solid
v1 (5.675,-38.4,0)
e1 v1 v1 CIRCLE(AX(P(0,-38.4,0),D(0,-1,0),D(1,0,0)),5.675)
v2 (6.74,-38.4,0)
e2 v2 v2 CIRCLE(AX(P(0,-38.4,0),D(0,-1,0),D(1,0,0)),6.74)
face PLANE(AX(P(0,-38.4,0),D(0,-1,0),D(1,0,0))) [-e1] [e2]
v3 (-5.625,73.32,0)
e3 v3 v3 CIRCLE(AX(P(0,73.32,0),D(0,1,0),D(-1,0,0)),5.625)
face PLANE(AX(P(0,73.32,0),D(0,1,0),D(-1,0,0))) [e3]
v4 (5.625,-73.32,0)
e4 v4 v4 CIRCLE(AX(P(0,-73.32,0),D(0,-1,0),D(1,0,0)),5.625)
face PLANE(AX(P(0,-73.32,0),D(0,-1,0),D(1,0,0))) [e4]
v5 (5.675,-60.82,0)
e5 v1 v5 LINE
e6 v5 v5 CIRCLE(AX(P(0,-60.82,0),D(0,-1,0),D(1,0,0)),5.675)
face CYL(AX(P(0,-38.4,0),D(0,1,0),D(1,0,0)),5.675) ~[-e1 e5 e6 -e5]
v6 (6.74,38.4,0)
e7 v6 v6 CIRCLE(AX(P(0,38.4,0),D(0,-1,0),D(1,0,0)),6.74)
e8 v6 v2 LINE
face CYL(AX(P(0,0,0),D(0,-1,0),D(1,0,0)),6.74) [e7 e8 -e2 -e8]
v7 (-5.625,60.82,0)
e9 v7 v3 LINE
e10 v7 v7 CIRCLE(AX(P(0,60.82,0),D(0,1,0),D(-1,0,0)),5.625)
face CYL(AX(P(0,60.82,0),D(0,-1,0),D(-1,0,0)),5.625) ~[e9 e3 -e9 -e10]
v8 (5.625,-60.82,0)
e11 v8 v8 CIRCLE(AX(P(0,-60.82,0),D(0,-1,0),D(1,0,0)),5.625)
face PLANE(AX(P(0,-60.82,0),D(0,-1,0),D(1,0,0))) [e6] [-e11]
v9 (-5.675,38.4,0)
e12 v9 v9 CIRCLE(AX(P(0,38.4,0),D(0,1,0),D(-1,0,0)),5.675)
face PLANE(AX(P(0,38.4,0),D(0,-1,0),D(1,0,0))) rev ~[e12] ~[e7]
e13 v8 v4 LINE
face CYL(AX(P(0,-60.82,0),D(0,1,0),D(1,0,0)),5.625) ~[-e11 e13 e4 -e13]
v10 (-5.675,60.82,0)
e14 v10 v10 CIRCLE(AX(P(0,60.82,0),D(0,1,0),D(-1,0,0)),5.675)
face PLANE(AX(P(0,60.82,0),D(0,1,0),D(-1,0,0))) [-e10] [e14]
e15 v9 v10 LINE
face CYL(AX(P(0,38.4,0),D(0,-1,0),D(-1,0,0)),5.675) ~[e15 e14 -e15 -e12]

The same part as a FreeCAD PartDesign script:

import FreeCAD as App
import Part
import Sketcher
Q = App.Units.Quantity

doc = App.newDocument("Part")
body = doc.addObject("PartDesign::Body", "Body")

# Sketch on XZ plane
sketch1 = body.newObject("Sketcher::SketchObject", "Sketch")
sketch1.AttachmentSupport = (doc.getObject("XZ_Plane"), [""])
sketch1.MapMode = "FlatFace"
sketch1.addGeometry(Part.Circle(App.Vector(0, 0, 0), App.Vector(0, 0, 1), 6.74), False)
sketch1.addConstraint(Sketcher.Constraint("Coincident", 0, 3, -1, 1))
sketch1.addConstraint(Sketcher.Constraint("Diameter", 0, Q("13.48 mm")))
pad1 = body.newObject("PartDesign::Pad", "Pad")
pad1.Profile = sketch1
pad1.Length = 76.8
pad1.Midplane = True

# Sketch on XZ plane
sketch2 = body.newObject("Sketcher::SketchObject", "Sketch001")
sketch2.AttachmentSupport = (doc.getObject("XZ_Plane"), [""])
sketch2.MapMode = "FlatFace"
sketch2.AttachmentOffset = App.Placement(App.Vector(0, 0, -38.4), App.Rotation())
sketch2.addGeometry(Part.Circle(App.Vector(0, 0, 0), App.Vector(0, 0, 1), 5.675), False)
sketch2.addConstraint(Sketcher.Constraint("Coincident", 0, 3, -1, 1))
sketch2.addConstraint(Sketcher.Constraint("Diameter", 0, Q("11.35 mm")))
pad2 = body.newObject("PartDesign::Pad", "Pad001")
pad2.Profile = sketch2
pad2.Length = 22.42
pad2.Reversed = True

# Sketch on XZ plane
sketch3 = body.newObject("Sketcher::SketchObject", "Sketch002")
sketch3.AttachmentSupport = (doc.getObject("XZ_Plane"), [""])
sketch3.MapMode = "FlatFace"
sketch3.AttachmentOffset = App.Placement(App.Vector(0, 0, -60.82), App.Rotation())
sketch3.addGeometry(Part.Circle(App.Vector(0, 0, 0), App.Vector(0, 0, 1), 5.625), False)
sketch3.addConstraint(Sketcher.Constraint("Coincident", 0, 3, -1, 1))
sketch3.addConstraint(Sketcher.Constraint("Diameter", 0, Q("11.25 mm")))
pad3 = body.newObject("PartDesign::Pad", "Pad002")
pad3.Profile = sketch3
pad3.Length = 12.5
pad3.Reversed = True

# Sketch on XZ plane
sketch4 = body.newObject("Sketcher::SketchObject", "Sketch003")
sketch4.AttachmentSupport = (doc.getObject("XZ_Plane"), [""])
sketch4.MapMode = "FlatFace"
sketch4.AttachmentOffset = App.Placement(App.Vector(0, 0, 38.4), App.Rotation())
sketch4.addGeometry(Part.Circle(App.Vector(0, 0, 0), App.Vector(0, 0, 1), 5.675), False)
sketch4.addConstraint(Sketcher.Constraint("Coincident", 0, 3, -1, 1))
sketch4.addConstraint(Sketcher.Constraint("Diameter", 0, Q("11.35 mm")))
pad4 = body.newObject("PartDesign::Pad", "Pad003")
pad4.Profile = sketch4
pad4.Length = 22.42

# Sketch on XZ plane
sketch5 = body.newObject("Sketcher::SketchObject", "Sketch004")
sketch5.AttachmentSupport = (doc.getObject("XZ_Plane"), [""])
sketch5.MapMode = "FlatFace"
sketch5.AttachmentOffset = App.Placement(App.Vector(0, 0, 60.82), App.Rotation())
sketch5.addGeometry(Part.Circle(App.Vector(0, 0, 0), App.Vector(0, 0, 1), 5.625), False)
sketch5.addConstraint(Sketcher.Constraint("Coincident", 0, 3, -1, 1))
sketch5.addConstraint(Sketcher.Constraint("Diameter", 0, Q("11.25 mm")))
pad5 = body.newObject("PartDesign::Pad", "Pad004")
pad5.Profile = sketch5
pad5.Length = 12.5

doc.recompute()
